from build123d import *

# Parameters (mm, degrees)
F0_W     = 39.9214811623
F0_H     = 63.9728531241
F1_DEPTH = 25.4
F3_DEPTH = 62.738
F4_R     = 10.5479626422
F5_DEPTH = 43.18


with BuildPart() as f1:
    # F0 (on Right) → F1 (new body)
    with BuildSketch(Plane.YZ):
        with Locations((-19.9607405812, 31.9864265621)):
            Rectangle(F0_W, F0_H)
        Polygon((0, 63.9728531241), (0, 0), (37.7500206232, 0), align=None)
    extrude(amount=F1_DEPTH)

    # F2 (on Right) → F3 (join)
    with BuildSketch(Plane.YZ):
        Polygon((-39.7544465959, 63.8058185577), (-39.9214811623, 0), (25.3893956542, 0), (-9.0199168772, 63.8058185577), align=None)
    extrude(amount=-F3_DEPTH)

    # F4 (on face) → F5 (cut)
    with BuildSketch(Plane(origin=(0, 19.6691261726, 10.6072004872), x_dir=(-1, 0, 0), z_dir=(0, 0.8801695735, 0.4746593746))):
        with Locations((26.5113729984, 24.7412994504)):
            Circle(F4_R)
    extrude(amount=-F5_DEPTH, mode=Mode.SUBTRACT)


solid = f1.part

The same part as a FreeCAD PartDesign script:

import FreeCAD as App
import Part
import Sketcher
Q = App.Units.Quantity


def add_polygon(sketch, points):
    """Adds a closed chain of lines whose ends are joined by coincident constraints."""
    first, n = sketch.GeometryCount, len(points)
    for a, b in zip(points, points[1:] + points[:1]):
        sketch.addGeometry(Part.LineSegment(App.Vector(*a, 0), App.Vector(*b, 0)), False)
    for i in range(n):
        sketch.addConstraint(Sketcher.Constraint("Coincident", first + i, 2, first + (i + 1) % n, 1))

doc = App.newDocument("Part")
body = doc.addObject("PartDesign::Body", "Body")

# Sketch on YZ plane
sketch1 = body.newObject("Sketcher::SketchObject", "Sketch")
sketch1.AttachmentSupport = (doc.getObject("YZ_Plane"), [""])
sketch1.MapMode = "FlatFace"
add_polygon(sketch1, [(-40, 64), (-40, 0), (38, 0), (0, 64)])  # lines 0-3
sketch1.addConstraint([
    Sketcher.Constraint("Vertical", 0),
    Sketcher.Constraint("Horizontal", 1),
    Sketcher.Constraint("Horizontal", 3),
    Sketcher.Constraint("PointOnObject", 0, 2, -1),
    Sketcher.Constraint("PointOnObject", 2, 2, -2),
    Sketcher.Constraint("DistanceX", 1, 1, 1, 2, Q("77.671502 mm")),
    Sketcher.Constraint("DistanceX", 3, 2, 3, 1, Q("39.921481 mm")),
    Sketcher.Constraint("Distance", 2, Q("74.280482 mm")),
])
pad1 = body.newObject("PartDesign::Pad", "Pad")
pad1.Profile = sketch1
pad1.Length = Q("1 in")

# Sketch on YZ plane
sketch2 = body.newObject("Sketcher::SketchObject", "Sketch001")
sketch2.AttachmentSupport = (doc.getObject("YZ_Plane"), [""])
sketch2.MapMode = "FlatFace"
add_polygon(sketch2, [(-40, 64), (-40, 0), (25, 0), (-9, 64)])  # lines 0-3
sketch2.addConstraint([
    Sketcher.Constraint("Horizontal", 1),
    Sketcher.Constraint("Horizontal", 3),
    Sketcher.Constraint("PointOnObject", 0, 2, -1),
    Sketcher.Constraint("Angle", 0, Q("-90.149992 deg")),
    Sketcher.Constraint("DistanceX", 3, 2, 3, 1, Q("30.73453 mm")),
    Sketcher.Constraint("DistanceX", 1, 1, 1, 2, Q("65.310877 mm")),
    Sketcher.Constraint("DistanceX", 0, 2, -1, 1, Q("39.921481 mm")),
    Sketcher.Constraint("DistanceY", -1, 1, 2, 2, Q("63.805819 mm")),
])
pad2 = body.newObject("PartDesign::Pad", "Pad001")
pad2.Profile = sketch2
pad2.Length = Q("2.47 in")
pad2.Reversed = True

# Sketch on an angled plane
sketch3 = body.newObject("Sketcher::SketchObject", "Sketch002")
sketch3.Placement = App.Placement(App.Vector(0, 19.669126, 10.6072), App.Rotation(App.Vector(-1, 0, 0), App.Vector(0, -0.474659375, 0.880169573), App.Vector(0, 0.880169573, 0.474659375), "ZXY"))
sketch3.addGeometry(Part.Circle(App.Vector(27, 25, 0), App.Vector(0, 0, 1), 11), False)
sketch3.addConstraint([
    Sketcher.Constraint("Diameter", 0, Q("21.095925 mm")),
    Sketcher.Constraint("DistanceY", -1, 1, 0, 3, Q("24.741299 mm")),
    Sketcher.Constraint("DistanceX", -1, 1, 0, 3, Q("26.511373 mm")),
])
pocket1 = body.newObject("PartDesign::Pocket", "Pocket")
pocket1.Profile = sketch3
pocket1.Length = Q("1.7 in")

doc.recompute()
